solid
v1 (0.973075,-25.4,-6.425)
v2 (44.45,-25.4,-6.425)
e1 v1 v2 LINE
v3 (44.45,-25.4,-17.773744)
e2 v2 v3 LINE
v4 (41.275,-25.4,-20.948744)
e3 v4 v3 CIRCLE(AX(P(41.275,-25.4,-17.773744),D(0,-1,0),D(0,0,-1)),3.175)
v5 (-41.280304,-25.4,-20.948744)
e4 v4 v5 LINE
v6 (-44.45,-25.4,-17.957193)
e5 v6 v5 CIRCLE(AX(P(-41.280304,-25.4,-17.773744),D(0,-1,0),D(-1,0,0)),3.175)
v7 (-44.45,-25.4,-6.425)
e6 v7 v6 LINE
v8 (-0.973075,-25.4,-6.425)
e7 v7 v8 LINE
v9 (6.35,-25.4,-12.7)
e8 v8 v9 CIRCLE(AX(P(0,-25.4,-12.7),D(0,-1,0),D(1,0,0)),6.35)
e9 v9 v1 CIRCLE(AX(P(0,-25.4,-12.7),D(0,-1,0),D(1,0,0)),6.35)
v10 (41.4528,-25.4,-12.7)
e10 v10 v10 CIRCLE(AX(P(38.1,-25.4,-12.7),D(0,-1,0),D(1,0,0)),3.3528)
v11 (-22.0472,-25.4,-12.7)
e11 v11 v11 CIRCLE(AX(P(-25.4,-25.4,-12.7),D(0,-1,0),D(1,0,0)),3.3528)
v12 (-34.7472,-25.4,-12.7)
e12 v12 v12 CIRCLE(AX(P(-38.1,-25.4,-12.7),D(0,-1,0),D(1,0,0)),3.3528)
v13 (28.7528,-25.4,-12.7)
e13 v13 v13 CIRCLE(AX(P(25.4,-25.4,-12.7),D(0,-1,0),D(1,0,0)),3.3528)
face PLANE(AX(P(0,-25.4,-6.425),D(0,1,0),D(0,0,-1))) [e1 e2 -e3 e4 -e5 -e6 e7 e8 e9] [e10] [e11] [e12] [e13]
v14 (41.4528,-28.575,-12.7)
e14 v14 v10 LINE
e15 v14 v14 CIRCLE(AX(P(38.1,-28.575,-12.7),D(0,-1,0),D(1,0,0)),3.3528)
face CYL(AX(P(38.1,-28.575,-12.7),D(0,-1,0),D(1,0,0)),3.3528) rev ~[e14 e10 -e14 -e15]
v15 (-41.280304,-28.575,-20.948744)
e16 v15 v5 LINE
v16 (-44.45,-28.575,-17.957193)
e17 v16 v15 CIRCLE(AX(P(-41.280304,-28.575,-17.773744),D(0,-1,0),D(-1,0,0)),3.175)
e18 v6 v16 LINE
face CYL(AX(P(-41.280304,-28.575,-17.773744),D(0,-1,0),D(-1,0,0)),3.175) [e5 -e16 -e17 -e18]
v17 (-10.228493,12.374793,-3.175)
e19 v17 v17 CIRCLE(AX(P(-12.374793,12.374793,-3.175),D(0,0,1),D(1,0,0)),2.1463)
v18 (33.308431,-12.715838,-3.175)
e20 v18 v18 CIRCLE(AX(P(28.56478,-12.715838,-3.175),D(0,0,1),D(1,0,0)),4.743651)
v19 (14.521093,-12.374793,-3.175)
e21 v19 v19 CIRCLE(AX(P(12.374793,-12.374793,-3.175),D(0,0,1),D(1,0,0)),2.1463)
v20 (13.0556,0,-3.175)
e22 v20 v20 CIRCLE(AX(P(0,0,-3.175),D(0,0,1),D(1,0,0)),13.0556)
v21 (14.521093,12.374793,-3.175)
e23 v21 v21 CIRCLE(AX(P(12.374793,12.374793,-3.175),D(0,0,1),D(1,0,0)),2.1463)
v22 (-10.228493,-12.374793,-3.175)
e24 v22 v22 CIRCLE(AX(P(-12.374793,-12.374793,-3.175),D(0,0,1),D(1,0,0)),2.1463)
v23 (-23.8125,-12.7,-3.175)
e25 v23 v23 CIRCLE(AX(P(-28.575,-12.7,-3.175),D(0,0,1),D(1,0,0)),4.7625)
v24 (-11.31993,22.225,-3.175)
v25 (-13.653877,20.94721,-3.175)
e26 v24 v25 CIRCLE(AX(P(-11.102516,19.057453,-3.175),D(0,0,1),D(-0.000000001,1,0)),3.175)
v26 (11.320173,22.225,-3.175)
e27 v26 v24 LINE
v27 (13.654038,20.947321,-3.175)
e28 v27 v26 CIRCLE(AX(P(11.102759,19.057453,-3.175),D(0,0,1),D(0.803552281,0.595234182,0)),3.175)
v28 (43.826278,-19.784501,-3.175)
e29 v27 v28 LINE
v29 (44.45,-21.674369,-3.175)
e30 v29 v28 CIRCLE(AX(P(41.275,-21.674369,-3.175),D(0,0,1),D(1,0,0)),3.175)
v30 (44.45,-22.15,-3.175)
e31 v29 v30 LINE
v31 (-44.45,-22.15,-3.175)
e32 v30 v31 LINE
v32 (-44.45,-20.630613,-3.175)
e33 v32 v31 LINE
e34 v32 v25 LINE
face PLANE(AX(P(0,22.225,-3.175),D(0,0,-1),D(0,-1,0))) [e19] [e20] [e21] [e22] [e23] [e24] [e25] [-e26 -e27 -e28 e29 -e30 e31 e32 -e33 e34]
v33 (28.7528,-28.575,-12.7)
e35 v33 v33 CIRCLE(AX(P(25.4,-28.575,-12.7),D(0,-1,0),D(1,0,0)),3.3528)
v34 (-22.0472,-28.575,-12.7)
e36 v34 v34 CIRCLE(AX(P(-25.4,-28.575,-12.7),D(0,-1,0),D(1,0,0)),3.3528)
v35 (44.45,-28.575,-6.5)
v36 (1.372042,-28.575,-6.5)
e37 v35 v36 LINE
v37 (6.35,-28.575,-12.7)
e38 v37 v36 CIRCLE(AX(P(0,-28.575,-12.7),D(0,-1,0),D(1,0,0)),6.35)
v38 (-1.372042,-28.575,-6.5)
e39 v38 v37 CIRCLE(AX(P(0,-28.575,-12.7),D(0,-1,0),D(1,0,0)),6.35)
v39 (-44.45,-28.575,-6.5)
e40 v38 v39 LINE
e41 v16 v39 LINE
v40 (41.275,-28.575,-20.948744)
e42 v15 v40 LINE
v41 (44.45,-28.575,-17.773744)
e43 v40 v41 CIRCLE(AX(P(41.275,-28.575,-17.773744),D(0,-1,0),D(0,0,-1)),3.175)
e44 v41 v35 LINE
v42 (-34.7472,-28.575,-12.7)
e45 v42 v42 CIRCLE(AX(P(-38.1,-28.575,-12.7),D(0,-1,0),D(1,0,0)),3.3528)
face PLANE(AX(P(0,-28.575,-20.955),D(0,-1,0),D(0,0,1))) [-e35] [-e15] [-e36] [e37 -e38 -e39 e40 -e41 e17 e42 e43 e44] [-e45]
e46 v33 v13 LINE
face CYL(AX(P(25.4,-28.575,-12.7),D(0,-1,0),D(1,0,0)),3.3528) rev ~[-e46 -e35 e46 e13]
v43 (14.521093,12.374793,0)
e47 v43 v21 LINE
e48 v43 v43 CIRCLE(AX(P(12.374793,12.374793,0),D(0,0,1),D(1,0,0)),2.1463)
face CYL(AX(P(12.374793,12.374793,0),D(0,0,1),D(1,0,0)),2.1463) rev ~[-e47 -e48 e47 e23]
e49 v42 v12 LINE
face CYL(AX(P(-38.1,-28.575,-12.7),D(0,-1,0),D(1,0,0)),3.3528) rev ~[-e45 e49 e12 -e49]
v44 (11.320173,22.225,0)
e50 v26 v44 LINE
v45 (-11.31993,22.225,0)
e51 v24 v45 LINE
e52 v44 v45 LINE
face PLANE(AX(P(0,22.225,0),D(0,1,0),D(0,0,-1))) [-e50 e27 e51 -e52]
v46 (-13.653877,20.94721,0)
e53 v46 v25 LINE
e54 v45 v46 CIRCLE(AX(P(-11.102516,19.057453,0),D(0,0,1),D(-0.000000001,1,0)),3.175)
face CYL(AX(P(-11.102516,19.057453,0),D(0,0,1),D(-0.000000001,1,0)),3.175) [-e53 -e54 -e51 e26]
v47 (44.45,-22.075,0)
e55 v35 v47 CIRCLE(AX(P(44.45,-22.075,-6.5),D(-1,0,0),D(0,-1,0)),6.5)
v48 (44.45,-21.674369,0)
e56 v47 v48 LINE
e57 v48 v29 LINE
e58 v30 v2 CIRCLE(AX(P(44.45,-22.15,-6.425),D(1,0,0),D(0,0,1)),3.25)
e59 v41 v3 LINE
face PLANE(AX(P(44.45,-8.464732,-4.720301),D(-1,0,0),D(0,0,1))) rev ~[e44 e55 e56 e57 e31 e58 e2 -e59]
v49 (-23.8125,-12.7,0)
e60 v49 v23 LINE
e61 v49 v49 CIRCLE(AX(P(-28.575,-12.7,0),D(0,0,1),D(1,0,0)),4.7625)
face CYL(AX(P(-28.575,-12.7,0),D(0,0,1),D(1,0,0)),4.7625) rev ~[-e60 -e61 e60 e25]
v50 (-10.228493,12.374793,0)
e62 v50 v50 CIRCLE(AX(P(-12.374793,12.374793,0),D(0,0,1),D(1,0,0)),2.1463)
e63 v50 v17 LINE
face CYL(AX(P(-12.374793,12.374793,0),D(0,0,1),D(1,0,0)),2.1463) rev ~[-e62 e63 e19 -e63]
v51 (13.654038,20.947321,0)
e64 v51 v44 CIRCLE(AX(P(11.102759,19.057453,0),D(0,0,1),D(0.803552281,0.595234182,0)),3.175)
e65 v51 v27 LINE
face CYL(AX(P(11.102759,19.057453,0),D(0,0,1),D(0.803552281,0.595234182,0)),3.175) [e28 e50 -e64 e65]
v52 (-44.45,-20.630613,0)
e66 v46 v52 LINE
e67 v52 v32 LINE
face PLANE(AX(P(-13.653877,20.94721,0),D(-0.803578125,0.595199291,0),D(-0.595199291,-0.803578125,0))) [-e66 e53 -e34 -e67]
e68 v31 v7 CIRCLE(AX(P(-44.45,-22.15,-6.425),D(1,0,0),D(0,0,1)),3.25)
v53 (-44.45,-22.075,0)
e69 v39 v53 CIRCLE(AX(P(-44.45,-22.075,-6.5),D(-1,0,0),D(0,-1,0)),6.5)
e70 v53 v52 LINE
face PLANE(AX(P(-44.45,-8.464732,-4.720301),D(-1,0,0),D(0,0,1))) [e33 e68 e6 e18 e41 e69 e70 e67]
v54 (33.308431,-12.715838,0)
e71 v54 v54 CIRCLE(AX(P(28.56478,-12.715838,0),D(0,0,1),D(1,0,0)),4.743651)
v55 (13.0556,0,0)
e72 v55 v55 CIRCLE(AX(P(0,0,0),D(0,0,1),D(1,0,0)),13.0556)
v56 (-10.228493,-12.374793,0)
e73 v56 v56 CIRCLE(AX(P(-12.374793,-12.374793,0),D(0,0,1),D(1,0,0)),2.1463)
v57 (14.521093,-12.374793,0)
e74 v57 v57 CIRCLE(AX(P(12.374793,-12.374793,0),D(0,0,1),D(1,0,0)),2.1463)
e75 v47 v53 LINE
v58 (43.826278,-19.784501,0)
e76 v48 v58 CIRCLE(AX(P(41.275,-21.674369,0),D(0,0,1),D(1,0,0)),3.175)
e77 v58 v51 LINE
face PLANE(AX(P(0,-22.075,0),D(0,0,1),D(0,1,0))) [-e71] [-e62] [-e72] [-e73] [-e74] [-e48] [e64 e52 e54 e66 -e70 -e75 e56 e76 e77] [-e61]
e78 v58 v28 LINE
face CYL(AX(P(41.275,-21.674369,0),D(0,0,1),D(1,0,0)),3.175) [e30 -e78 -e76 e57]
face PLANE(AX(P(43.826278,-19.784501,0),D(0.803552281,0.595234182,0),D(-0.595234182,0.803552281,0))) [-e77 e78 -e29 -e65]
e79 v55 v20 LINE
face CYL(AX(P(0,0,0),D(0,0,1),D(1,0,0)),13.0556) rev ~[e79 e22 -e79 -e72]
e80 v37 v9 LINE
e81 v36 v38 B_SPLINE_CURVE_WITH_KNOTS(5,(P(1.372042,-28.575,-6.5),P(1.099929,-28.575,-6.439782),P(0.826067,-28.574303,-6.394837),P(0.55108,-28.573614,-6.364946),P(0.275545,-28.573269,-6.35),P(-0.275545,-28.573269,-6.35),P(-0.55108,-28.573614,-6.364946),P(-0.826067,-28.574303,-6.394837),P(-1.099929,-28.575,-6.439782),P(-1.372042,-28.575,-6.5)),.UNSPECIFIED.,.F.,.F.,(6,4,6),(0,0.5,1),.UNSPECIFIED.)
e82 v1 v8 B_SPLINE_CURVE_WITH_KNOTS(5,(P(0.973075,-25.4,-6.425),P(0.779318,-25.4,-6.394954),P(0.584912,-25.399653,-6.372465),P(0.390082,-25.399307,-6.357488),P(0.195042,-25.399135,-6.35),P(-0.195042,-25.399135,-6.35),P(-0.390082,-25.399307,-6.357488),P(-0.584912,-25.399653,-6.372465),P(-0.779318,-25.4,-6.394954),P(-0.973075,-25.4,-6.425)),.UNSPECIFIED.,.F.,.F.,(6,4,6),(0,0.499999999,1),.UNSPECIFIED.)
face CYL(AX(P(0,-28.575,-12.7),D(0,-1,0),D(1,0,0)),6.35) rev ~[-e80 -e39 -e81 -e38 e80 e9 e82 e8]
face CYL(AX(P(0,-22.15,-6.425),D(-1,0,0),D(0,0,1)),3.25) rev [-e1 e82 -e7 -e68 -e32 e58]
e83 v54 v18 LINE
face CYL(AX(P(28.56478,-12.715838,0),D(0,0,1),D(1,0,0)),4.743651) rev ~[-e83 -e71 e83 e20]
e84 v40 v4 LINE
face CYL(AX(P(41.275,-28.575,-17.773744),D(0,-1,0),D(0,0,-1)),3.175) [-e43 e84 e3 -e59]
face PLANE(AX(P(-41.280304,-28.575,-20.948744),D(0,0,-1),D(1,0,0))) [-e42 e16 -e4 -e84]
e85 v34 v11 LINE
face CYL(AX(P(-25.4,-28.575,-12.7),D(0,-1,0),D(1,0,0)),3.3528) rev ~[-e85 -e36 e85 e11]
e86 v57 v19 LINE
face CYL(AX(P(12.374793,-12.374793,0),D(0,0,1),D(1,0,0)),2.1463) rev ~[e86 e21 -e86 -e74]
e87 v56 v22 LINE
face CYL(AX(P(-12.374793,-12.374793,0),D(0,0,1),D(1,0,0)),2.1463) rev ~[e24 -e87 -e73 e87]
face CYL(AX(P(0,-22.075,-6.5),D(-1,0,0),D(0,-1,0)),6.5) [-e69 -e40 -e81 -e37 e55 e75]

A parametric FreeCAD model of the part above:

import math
import FreeCAD as App
import Part
import Sketcher

V = App.Vector
Q = App.Units.Quantity

doc = App.newDocument("Part")
body = doc.addObject("PartDesign::Body", "Body")

sketch1 = body.newObject("Sketcher::SketchObject", "Sketch")
sketch1.AttachmentSupport = (doc.getObject("YZ_Plane"), [""])
sketch1.MapMode = "FlatFace"
sketch1.addGeometry(Part.LineSegment(V(-28.6, -21, 0), V(-28.6, -6.5, 0)), False)
sketch1.addGeometry(Part.ArcOfCircle(Part.Circle(V(-22.1, -6.5, 0), V(0, 0, 1), 6.5), math.radians(90), math.radians(180)), False)
sketch1.addGeometry(Part.LineSegment(V(-22.1, 0, 0), V(22.2, 0, 0)), False)
sketch1.addGeometry(Part.LineSegment(V(22.2, 0, 0), V(22.2, -3.2, 0)), False)
sketch1.addGeometry(Part.LineSegment(V(22.2, -3.2, 0), V(-22.1, -3.2, 0)), False)
sketch1.addGeometry(Part.ArcOfCircle(Part.Circle(V(-22.1, -6.4, 0), V(0, 0, 1), 3.2), math.radians(90), math.radians(180)), False)
sketch1.addGeometry(Part.LineSegment(V(-25.4, -6.4, 0), V(-25.4, -21, 0)), False)
sketch1.addGeometry(Part.LineSegment(V(-25.4, -21, 0), V(-28.6, -21, 0)), False)
sketch1.addConstraint(Sketcher.Constraint("Tangent", 0, 2, 1, 2))
sketch1.addConstraint(Sketcher.Constraint("Tangent", 1, 1, 2, 1))
sketch1.addConstraint(Sketcher.Constraint("Coincident", 2, 2, 3, 1))
sketch1.addConstraint(Sketcher.Constraint("Coincident", 3, 2, 4, 1))
sketch1.addConstraint(Sketcher.Constraint("Tangent", 4, 2, 5, 1))
sketch1.addConstraint(Sketcher.Constraint("Tangent", 5, 2, 6, 1))
sketch1.addConstraint(Sketcher.Constraint("Coincident", 6, 2, 7, 1))
sketch1.addConstraint(Sketcher.Constraint("Coincident", 7, 2, 0, 1))
sketch1.addConstraint(Sketcher.Constraint("Vertical", 0))
sketch1.addConstraint(Sketcher.Constraint("Horizontal", 2))
sketch1.addConstraint(Sketcher.Constraint("Vertical", 3))
sketch1.addConstraint(Sketcher.Constraint("Horizontal", 4))
sketch1.addConstraint(Sketcher.Constraint("Vertical", 6))
sketch1.addConstraint(Sketcher.Constraint("Horizontal", 7))
sketch1.addConstraint(Sketcher.Constraint("PointOnObject", 1, 1, -1))
sketch1.addConstraint(Sketcher.Constraint("Equal", 7, 3))
sketch1.addConstraint(Sketcher.Constraint("DistanceX", 5, 2, -1, 1, Q("1 in")))
sketch1.addConstraint(Sketcher.Constraint("DistanceX", 0, 2, 2, 2, Q("2 in")))
sketch1.addConstraint(Sketcher.Constraint("DistanceY", 6, 2, 4, 2, Q("0.7 in")))
sketch1.addConstraint(Sketcher.Constraint("DistanceX", 7, 2, 7, 1, Q("0.125 in")))
sketch1.addConstraint(Sketcher.Constraint("Radius", 1, 6.5))
sketch1.addConstraint(Sketcher.Constraint("Radius", 5, 3.25))
pad1 = body.newObject("PartDesign::Pad", "Pad")
pad1.Profile = sketch1
pad1.Length = Q("3.5 in")
pad1.Midplane = True

sketch2 = body.newObject("Sketcher::SketchObject", "Sketch001")
sketch2.AttachmentSupport = (doc.getObject("XZ_Plane"), [""])
sketch2.MapMode = "FlatFace"
sketch2.AttachmentOffset = App.Placement(V(0, 0, 1.125 * 25.4), App.Rotation())
sketch2.addGeometry(Part.LineSegment(V(-55.9, 11.5, 0), V(-55.9, -32.4, 0)), False)
sketch2.addGeometry(Part.LineSegment(V(-55.9, -32.4, 0), V(55.9, -32.4, 0)), False)
sketch2.addGeometry(Part.LineSegment(V(55.9, -32.4, 0), V(55.9, 11.5, 0)), False)
sketch2.addGeometry(Part.LineSegment(V(55.9, 11.5, 0), V(-55.9, 11.5, 0)), False)
sketch2.addGeometry(Part.LineSegment(V(41.3, -20.9, 0), V(-41.3, -20.9, 0)), False)
sketch2.addGeometry(Part.ArcOfCircle(Part.Circle(V(-41.3, -17.8, 0), V(0, 0, 1), 3.2), math.radians(180), math.radians(270)), False)
sketch2.addGeometry(Part.LineSegment(V(-44.5, -17.8, 0), V(-44.5, 4.5, 0)), False)
sketch2.addGeometry(Part.LineSegment(V(-44.5, 4.5, 0), V(44.5, 4.5, 0)), False)
sketch2.addGeometry(Part.LineSegment(V(44.5, 4.5, 0), V(44.5, -17.8, 0)), False)
sketch2.addGeometry(Part.ArcOfCircle(Part.Circle(V(41.3, -17.8, 0), V(0, 0, 1), 3.2), math.radians(-90), math.radians(0)), False)
sketch2.addGeometry(Part.Circle(V(-38.1, -12.7, 0), V(0, 0, 1), 3.4), False)
sketch2.addGeometry(Part.Circle(V(-25.4, -12.7, 0), V(0, 0, 1), 3.4), False)
sketch2.addGeometry(Part.Circle(V(0, -12.7, 0), V(0, 0, 1), 6.3), False)
sketch2.addGeometry(Part.Circle(V(25.4, -12.7, 0), V(0, 0, 1), 3.4), False)
sketch2.addGeometry(Part.Circle(V(38.1, -12.7, 0), V(0, 0, 1), 3.4), False)
sketch2.addConstraint(Sketcher.Constraint("Coincident", 0, 2, 1, 1))
sketch2.addConstraint(Sketcher.Constraint("Coincident", 1, 2, 2, 1))
sketch2.addConstraint(Sketcher.Constraint("Coincident", 2, 2, 3, 1))
sketch2.addConstraint(Sketcher.Constraint("Coincident", 3, 2, 0, 1))
sketch2.addConstraint(Sketcher.Constraint("Tangent", 4, 2, 5, 2))
sketch2.addConstraint(Sketcher.Constraint("Tangent", 5, 1, 6, 1))
sketch2.addConstraint(Sketcher.Constraint("Coincident", 6, 2, 7, 1))
sketch2.addConstraint(Sketcher.Constraint("Coincident", 7, 2, 8, 1))
sketch2.addConstraint(Sketcher.Constraint("Tangent", 8, 2, 9, 2))
sketch2.addConstraint(Sketcher.Constraint("Tangent", 9, 1, 4, 1))
sketch2.addConstraint(Sketcher.Constraint("Vertical", 0))
sketch2.addConstraint(Sketcher.Constraint("Horizontal", 1))
sketch2.addConstraint(Sketcher.Constraint("Vertical", 2))
sketch2.addConstraint(Sketcher.Constraint("Horizontal", 3))
sketch2.addConstraint(Sketcher.Constraint("Horizontal", 4))
sketch2.addConstraint(Sketcher.Constraint("Vertical", 6))
sketch2.addConstraint(Sketcher.Constraint("Horizontal", 7))
sketch2.addConstraint(Sketcher.Constraint("Vertical", 8))
sketch2.addConstraint(Sketcher.Constraint("Equal", 5, 9))
sketch2.addConstraint(Sketcher.Constraint("Equal", 10, 11))
sketch2.addConstraint(Sketcher.Constraint("Equal", 11, 13))
sketch2.addConstraint(Sketcher.Constraint("Equal", 13, 14))
sketch2.addConstraint(Sketcher.Constraint("Symmetric", 11, 3, 13, 3, -2))
sketch2.addConstraint(Sketcher.Constraint("Symmetric", 10, 3, 14, 3, -2))
sketch2.addConstraint(Sketcher.Constraint("PointOnObject", 12, 3, -2))
sketch2.addConstraint(Sketcher.Constraint("Horizontal", 10, 3, 11, 3))
sketch2.addConstraint(Sketcher.Constraint("Horizontal", 11, 3, 12, 3))
sketch2.addConstraint(Sketcher.Constraint("Diameter", 12, Q("0.5 in")))
sketch2.addConstraint(Sketcher.Constraint("Diameter", 10, Q("0.264 in")))
sketch2.addConstraint(Sketcher.Constraint("DistanceX", 11, 3, -1, 1, Q("1 in")))
sketch2.addConstraint(Sketcher.Constraint("Radius", 5, Q("0.125 in")))
sketch2.addConstraint(Sketcher.Constraint("DistanceX", 10, 3, 14, 3, Q("3 in")))
sketch2.addConstraint(Sketcher.Constraint("DistanceY", 10, 3, -1, 1, Q("0.5 in")))
sketch2.addConstraint(Sketcher.Constraint("DistanceX", -1, 1, 7, 2, Q("1.75 in")))
sketch2.addConstraint(Sketcher.Constraint("DistanceX", 1, 1, 1, 2, 111.802))
sketch2.addConstraint(Sketcher.Constraint("DistanceY", 0, 2, 0, 1, 43.857))
sketch2.addConstraint(Sketcher.Constraint("DistanceX", 0, 2, -1, 1, 55.901))
sketch2.addConstraint(Sketcher.Constraint("DistanceY", 0, 2, -1, 1, 32.406))
sketch2.addConstraint(Sketcher.Constraint("DistanceX", 4, 2, 4, 1, 82.555304))
sketch2.addConstraint(Sketcher.Constraint("DistanceY", 6, 1, 6, 2, 22.309094))
sketch2.addConstraint(Sketcher.Constraint("DistanceY", -1, 1, 6, 2, 4.53535))
pocket1 = body.newObject("PartDesign::Pocket", "Pocket")
pocket1.Profile = sketch2
pocket1.Type = "ThroughAll"

sketch3 = body.newObject("Sketcher::SketchObject", "Sketch002")
sketch3.AttachmentSupport = (doc.getObject("XY_Plane"), [""])
sketch3.MapMode = "FlatFace"
sketch3.addGeometry(Part.LineSegment(V(-55.9, 33.7, 0), V(-55.9, -40, 0)), False)
sketch3.addGeometry(Part.LineSegment(V(-55.9, -40, 0), V(55.9, -40, 0)), False)
sketch3.addGeometry(Part.LineSegment(V(55.9, -40, 0), V(55.9, 33.7, 0)), False)
sketch3.addGeometry(Part.LineSegment(V(55.9, 33.7, 0), V(-55.9, 33.7, 0)), False)
sketch3.addGeometry(Part.LineSegment(V(-44.5, -20.6, 0), V(-13.7, 20.9, 0)), False)
sketch3.addGeometry(Part.ArcOfCircle(Part.Circle(V(-11.1, 19.1, 0), V(0, 0, 1), 3.2), math.radians(90), math.radians(143)), False)
sketch3.addGeometry(Part.LineSegment(V(-11.1, 22.2, 0), V(11.1, 22.2, 0)), False)
sketch3.addGeometry(Part.ArcOfCircle(Part.Circle(V(11.1, 19.1, 0), V(0, 0, 1), 3.2), math.radians(37), math.radians(90)), False)
sketch3.addGeometry(Part.LineSegment(V(13.7, 20.9, 0), V(43.8, -19.8, 0)), False)
sketch3.addGeometry(Part.ArcOfCircle(Part.Circle(V(41.3, -21.7, 0), V(0, 0, 1), 3.2), math.radians(0), math.radians(37)), False)
sketch3.addGeometry(Part.LineSegment(V(44.5, -21.7, 0), V(44.5, -28.6, 0)), False)
sketch3.addGeometry(Part.LineSegment(V(44.5, -28.6, 0), V(-44.5, -28.6, 0)), False)
sketch3.addGeometry(Part.LineSegment(V(-44.5, -28.6, 0), V(-44.5, -20.6, 0)), False)
sketch3.addGeometry(Part.Circle(V(-12.4, 12.4, 0), V(0, 0, 1), 2.1), False)
sketch3.addGeometry(Part.Circle(V(12.4, 12.4, 0), V(0, 0, 1), 2.1), False)
sketch3.addGeometry(Part.Circle(V(0, 0, 0), V(0, 0, 1), 13.1), False)
sketch3.addGeometry(Part.Circle(V(-28.6, -12.7, 0), V(0, 0, 1), 4.8), False)
sketch3.addGeometry(Part.Circle(V(-12.4, -12.4, 0), V(0, 0, 1), 2.1), False)
sketch3.addGeometry(Part.Circle(V(12.4, -12.4, 0), V(0, 0, 1), 2.1), False)
sketch3.addGeometry(Part.Circle(V(28.6, -12.7, 0), V(0, 0, 1), 4.7), False)
sketch3.addConstraint(Sketcher.Constraint("Coincident", 0, 2, 1, 1))
sketch3.addConstraint(Sketcher.Constraint("Coincident", 1, 2, 2, 1))
sketch3.addConstraint(Sketcher.Constraint("Coincident", 2, 2, 3, 1))
sketch3.addConstraint(Sketcher.Constraint("Coincident", 3, 2, 0, 1))
sketch3.addConstraint(Sketcher.Constraint("Tangent", 4, 2, 5, 2))
sketch3.addConstraint(Sketcher.Constraint("Tangent", 5, 1, 6, 1))
sketch3.addConstraint(Sketcher.Constraint("Tangent", 6, 2, 7, 2))
sketch3.addConstraint(Sketcher.Constraint("Tangent", 7, 1, 8, 1))
sketch3.addConstraint(Sketcher.Constraint("Tangent", 8, 2, 9, 2))
sketch3.addConstraint(Sketcher.Constraint("Tangent", 9, 1, 10, 1))
sketch3.addConstraint(Sketcher.Constraint("Coincident", 10, 2, 11, 1))
sketch3.addConstraint(Sketcher.Constraint("Coincident", 11, 2, 12, 1))
sketch3.addConstraint(Sketcher.Constraint("Coincident", 12, 2, 4, 1))
sketch3.addConstraint(Sketcher.Constraint("Vertical", 0))
sketch3.addConstraint(Sketcher.Constraint("Horizontal", 1))
sketch3.addConstraint(Sketcher.Constraint("Vertical", 2))
sketch3.addConstraint(Sketcher.Constraint("Horizontal", 3))
sketch3.addConstraint(Sketcher.Constraint("Horizontal", 6))
sketch3.addConstraint(Sketcher.Constraint("Vertical", 10))
sketch3.addConstraint(Sketcher.Constraint("Horizontal", 11))
sketch3.addConstraint(Sketcher.Constraint("Vertical", 12))
sketch3.addConstraint(Sketcher.Constraint("Coincident", 15, 3, -1, 1))
sketch3.addConstraint(Sketcher.Constraint("Equal", 5, 7))
sketch3.addConstraint(Sketcher.Constraint("Equal", 7, 9))
sketch3.addConstraint(Sketcher.Constraint("Equal", 13, 14))
sketch3.addConstraint(Sketcher.Constraint("Equal", 14, 17))
sketch3.addConstraint(Sketcher.Constraint("Equal", 17, 18))
sketch3.addConstraint(Sketcher.Constraint("Symmetric", 14, 3, 17, 3, -1, 1))
sketch3.addConstraint(Sketcher.Constraint("Symmetric", 13, 3, 18, 3, -1, 1))
sketch3.addConstraint(Sketcher.Constraint("Symmetric", 13, 3, 14, 3, -2))
sketch3.addConstraint(Sketcher.Constraint("Diameter", 13, Q("0.169 in")))
sketch3.addConstraint(Sketcher.Constraint("Diameter", 15, Q("1.028 in")))
sketch3.addConstraint(Sketcher.Constraint("Diameter", 16, Q("0.375 in")))
sketch3.addConstraint(Sketcher.Constraint("Radius", 5, Q("0.125 in")))
sketch3.addConstraint(Sketcher.Constraint("DistanceY", 16, 3, -1, 1, Q("0.5 in")))
sketch3.addConstraint(Sketcher.Constraint("DistanceX", -1, 1, 9, 1, Q("1.75 in")))
sketch3.addConstraint(Sketcher.Constraint("DistanceX", 16, 3, -1, 1, Q("1.125 in")))
sketch3.addConstraint(Sketcher.Constraint("DistanceY", 10, 2, -1, 1, Q("1.125 in")))
sketch3.addConstraint(Sketcher.Constraint("Diameter", 19, 9.487302))
sketch3.addConstraint(Sketcher.Constraint("DistanceX", 1, 1, 1, 2, 111.802))
sketch3.addConstraint(Sketcher.Constraint("DistanceY", 0, 2, 0, 1, 73.702))
sketch3.addConstraint(Sketcher.Constraint("DistanceY", 5, 3, 4, 2, Q("0.0743999 in")))
sketch3.addConstraint(Sketcher.Constraint("DistanceY", 10, 2, 10, 1, 6.900631))
sketch3.addConstraint(Sketcher.Constraint("DistanceY", 12, 1, 12, 2, 7.943271))
sketch3.addConstraint(Sketcher.Constraint("DistanceX", 0, 2, -1, 1, 55.901))
sketch3.addConstraint(Sketcher.Constraint("DistanceY", 0, 2, -1, 1, 40.026))
sketch3.addConstraint(Sketcher.Constraint("DistanceY", 8, 2, -1, 1, 19.784501))
sketch3.addConstraint(Sketcher.Constraint("DistanceX", 19, 3, 8, 2, 15.261498))
sketch3.addConstraint(Sketcher.Constraint("Distance", 4, 51.742249))
sketch3.addConstraint(Sketcher.Constraint("DistanceX", 6, 1, 6, 2, 22.205276))
sketch3.addConstraint(Sketcher.Constraint("DistanceY", 13, 3, 5, 3, 6.68266))
sketch3.addConstraint(Sketcher.Constraint("DistanceX", 5, 3, 14, 3, 23.477309))
sketch3.addConstraint(Sketcher.Constraint("DistanceY", 9, 3, 19, 3, 8.958532))
pocket2 = body.newObject("PartDesign::Pocket", "Pocket001")
pocket2.Profile = sketch3
pocket2.Type = "ThroughAll"

doc.recompute()
